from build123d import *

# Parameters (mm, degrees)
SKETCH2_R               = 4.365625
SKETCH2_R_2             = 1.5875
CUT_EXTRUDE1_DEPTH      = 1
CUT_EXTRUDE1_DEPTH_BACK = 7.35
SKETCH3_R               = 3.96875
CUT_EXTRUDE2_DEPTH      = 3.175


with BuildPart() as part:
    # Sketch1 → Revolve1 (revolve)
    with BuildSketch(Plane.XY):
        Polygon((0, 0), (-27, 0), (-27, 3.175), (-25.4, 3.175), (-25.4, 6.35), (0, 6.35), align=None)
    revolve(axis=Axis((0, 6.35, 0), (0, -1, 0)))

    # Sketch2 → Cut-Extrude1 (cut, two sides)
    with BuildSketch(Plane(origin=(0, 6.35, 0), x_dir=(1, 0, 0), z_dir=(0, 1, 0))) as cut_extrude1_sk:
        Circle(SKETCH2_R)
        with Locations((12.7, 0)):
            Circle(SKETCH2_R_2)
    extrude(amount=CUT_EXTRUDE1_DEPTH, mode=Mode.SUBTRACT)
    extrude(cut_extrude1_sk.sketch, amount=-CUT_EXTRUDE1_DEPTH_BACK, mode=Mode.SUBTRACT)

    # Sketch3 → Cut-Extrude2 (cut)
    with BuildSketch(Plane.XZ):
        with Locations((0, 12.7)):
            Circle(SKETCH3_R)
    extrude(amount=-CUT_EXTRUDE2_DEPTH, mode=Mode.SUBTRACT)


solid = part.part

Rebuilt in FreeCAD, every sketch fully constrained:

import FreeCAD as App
import Part
import Sketcher
from FreeCAD import Vector
Q = App.Units.Quantity


def add_polygon(sketch, points):
    """Adds a closed chain of lines whose ends are joined by coincident constraints."""
    first, n = sketch.GeometryCount, len(points)
    for a, b in zip(points, points[1:] + points[:1]):
        sketch.addGeometry(Part.LineSegment(App.Vector(*a, 0), App.Vector(*b, 0)), False)
    for i in range(n):
        sketch.addConstraint(Sketcher.Constraint("Coincident", first + i, 2, first + (i + 1) % n, 1))

doc = App.newDocument("Part")
body = doc.addObject("PartDesign::Body", "Body")

# Sketch on XY plane
sketch1 = body.newObject("Sketcher::SketchObject", "Sketch")
sketch1.AttachmentSupport = (doc.getObject("XY_Plane"), [""])
sketch1.MapMode = "FlatFace"
add_polygon(sketch1, [(-27, 0), (0, 0), (0, 6.3), (-25.4, 6.3), (-25.4, 3.2), (-27, 3.2)])  # lines 0-5
sketch1.addConstraint([
    Sketcher.Constraint("Horizontal", 0),
    Sketcher.Constraint("Vertical", 1),
    Sketcher.Constraint("Horizontal", 2),
    Sketcher.Constraint("Vertical", 3),
    Sketcher.Constraint("Horizontal", 4),
    Sketcher.Constraint("Vertical", 5),
    Sketcher.Constraint("Coincident", 0, 2, -1, 1),
    Sketcher.Constraint("Equal", 3, 5),
    Sketcher.Constraint("DistanceX", 2, 2, 2, 1, Q("1 in")),
    Sketcher.Constraint("DistanceY", 1, 1, 1, 2, Q("0.25 in")),
    Sketcher.Constraint("DistanceX", 0, 1, 0, 2, 27.0),
])
revolution = body.newObject("PartDesign::Revolution", "Revolution")
revolution.Profile = sketch1
revolution.ReferenceAxis = (sketch1, ["V_Axis"])
revolution.Angle = 360

# Sketch on XZ plane
sketch2 = body.newObject("Sketcher::SketchObject", "Sketch001")
sketch2.AttachmentSupport = (doc.getObject("XZ_Plane"), [""])
sketch2.MapMode = "FlatFace"
sketch2.AttachmentOffset = App.Placement(Vector(0, 0, -0.25 * 25.4), App.Rotation())
sketch2.addGeometry([
    Part.Circle(Vector(0, 0, 0), Vector(0, 0, 1), 4.4),
    Part.Circle(Vector(12.7, 0, 0), Vector(0, 0, 1), 1.6),
], False)
sketch2.addConstraint([
    Sketcher.Constraint("Coincident", 0, 3, -1, 1),
    Sketcher.Constraint("PointOnObject", 1, 3, -1),
    Sketcher.Constraint("Diameter", 0, Q("0.34375 in")),
    Sketcher.Constraint("Diameter", 1, Q("0.125 in")),
    Sketcher.Constraint("DistanceX", -1, 1, 1, 3, Q("0.5 in")),
])
pocket1 = body.newObject("PartDesign::Pocket", "Pocket")
pocket1.Profile = sketch2
pocket1.Type = "ThroughAll"
pocket1.Midplane = True

# Sketch on XZ plane
sketch3 = body.newObject("Sketcher::SketchObject", "Sketch002")
sketch3.AttachmentSupport = (doc.getObject("XZ_Plane"), [""])
sketch3.MapMode = "FlatFace"
sketch3.addGeometry(Part.Circle(Vector(0, 12.7, 0), Vector(0, 0, 1), 4), False)
sketch3.addConstraint([
    Sketcher.Constraint("PointOnObject", 0, 3, -2),
    Sketcher.Constraint("Diameter", 0, Q("0.3125 in")),
    Sketcher.Constraint("DistanceY", -1, 1, 0, 3, Q("0.5 in")),
])
pocket2 = body.newObject("PartDesign::Pocket", "Pocket001")
pocket2.Profile = sketch3
pocket2.Length = Q("0.125 in")

doc.recompute()
